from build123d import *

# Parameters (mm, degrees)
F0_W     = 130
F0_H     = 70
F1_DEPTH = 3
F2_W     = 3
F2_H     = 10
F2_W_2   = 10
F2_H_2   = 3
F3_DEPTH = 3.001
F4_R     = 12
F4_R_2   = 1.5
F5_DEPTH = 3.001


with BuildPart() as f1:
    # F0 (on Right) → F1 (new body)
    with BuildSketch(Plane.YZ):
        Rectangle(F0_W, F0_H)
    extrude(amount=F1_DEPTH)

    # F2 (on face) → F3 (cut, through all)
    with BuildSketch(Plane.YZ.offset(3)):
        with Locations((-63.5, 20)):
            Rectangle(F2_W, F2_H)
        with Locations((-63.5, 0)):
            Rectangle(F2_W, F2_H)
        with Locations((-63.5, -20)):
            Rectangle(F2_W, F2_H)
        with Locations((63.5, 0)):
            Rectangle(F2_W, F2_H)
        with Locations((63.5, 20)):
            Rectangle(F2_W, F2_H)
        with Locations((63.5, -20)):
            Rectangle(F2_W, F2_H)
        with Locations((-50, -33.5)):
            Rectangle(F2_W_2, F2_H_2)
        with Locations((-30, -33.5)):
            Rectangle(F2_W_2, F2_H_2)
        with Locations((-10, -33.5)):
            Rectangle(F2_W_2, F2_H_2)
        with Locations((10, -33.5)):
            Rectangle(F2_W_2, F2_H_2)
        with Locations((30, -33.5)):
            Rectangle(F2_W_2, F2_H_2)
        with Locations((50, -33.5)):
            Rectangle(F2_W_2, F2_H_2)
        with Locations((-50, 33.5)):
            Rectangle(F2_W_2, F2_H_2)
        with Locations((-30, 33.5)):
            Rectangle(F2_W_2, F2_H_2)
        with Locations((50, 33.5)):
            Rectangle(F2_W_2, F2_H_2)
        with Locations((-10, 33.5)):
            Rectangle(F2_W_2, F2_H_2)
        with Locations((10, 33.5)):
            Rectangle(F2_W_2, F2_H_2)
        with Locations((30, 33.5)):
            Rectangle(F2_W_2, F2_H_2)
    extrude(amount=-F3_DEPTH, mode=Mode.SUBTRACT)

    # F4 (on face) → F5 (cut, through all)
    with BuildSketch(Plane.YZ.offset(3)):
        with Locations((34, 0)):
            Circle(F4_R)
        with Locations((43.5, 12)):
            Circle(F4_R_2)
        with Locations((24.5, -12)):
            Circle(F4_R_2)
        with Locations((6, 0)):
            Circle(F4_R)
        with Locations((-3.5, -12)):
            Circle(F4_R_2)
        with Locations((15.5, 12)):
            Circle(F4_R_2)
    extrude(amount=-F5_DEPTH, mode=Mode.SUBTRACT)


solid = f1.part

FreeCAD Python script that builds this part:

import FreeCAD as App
import Part
import Sketcher

V = App.Vector

doc = App.newDocument("Part")
params = doc.addObject("Spreadsheet::Sheet", "Params")
for row, (alias, value) in enumerate([
    ("sketch1_width", "130 mm"),
    ("sketch1_height", "70 mm"),
    ("pad1_length", "3 mm"),
    ("sketch2_width", "3 mm"),
    ("sketch2_width2", "10 mm"),
    ("sketch3_diameter", "24 mm"),
    ("sketch3_diameter2", "3 mm"),
], start=1):
    params.set(f"A{row}", alias)
    params.set(f"B{row}", "=" + value)
    params.setAlias(f"B{row}", alias)

body = doc.addObject("PartDesign::Body", "Body")

# Sketch on YZ plane
sketch1 = body.newObject("Sketcher::SketchObject", "Sketch")
sketch1.AttachmentSupport = (doc.getObject("YZ_Plane"), [""])
sketch1.MapMode = "FlatFace"
sketch1.addGeometry([
    Part.LineSegment(V(-65, 35, 0), V(-65, -35, 0)),
    Part.LineSegment(V(-65, -35, 0), V(65, -35, 0)),
    Part.LineSegment(V(65, -35, 0), V(65, 35, 0)),
    Part.LineSegment(V(65, 35, 0), V(-65, 35, 0)),
], False)
sketch1.addConstraint([
    Sketcher.Constraint("Coincident", 0, 2, 1, 1),
    Sketcher.Constraint("Coincident", 1, 2, 2, 1),
    Sketcher.Constraint("Coincident", 2, 2, 3, 1),
    Sketcher.Constraint("Coincident", 3, 2, 0, 1),
    Sketcher.Constraint("Vertical", 0),
    Sketcher.Constraint("Horizontal", 1),
    Sketcher.Constraint("Vertical", 2),
    Sketcher.Constraint("Horizontal", 3),
    Sketcher.Constraint("Symmetric", 0, 2, 2, 2, -1, 1),
    Sketcher.Constraint("DistanceX", 1, 1, 1, 2, 130.0),
    Sketcher.Constraint("DistanceY", 0, 2, 0, 1, 70.0),
])
sketch1.setExpression("Constraints[9]", "Params.sketch1_width")
sketch1.setExpression("Constraints[10]", "Params.sketch1_height")
pad1 = body.newObject("PartDesign::Pad", "Pad")
pad1.Profile = sketch1
pad1.setExpression("Length", "Params.pad1_length")

# Sketch on YZ plane
sketch2 = body.newObject("Sketcher::SketchObject", "Sketch001")
sketch2.AttachmentSupport = (doc.getObject("YZ_Plane"), [""])
sketch2.MapMode = "FlatFace"
sketch2.AttachmentOffset = App.Placement(V(0, 0, 3), App.Rotation())
sketch2.addGeometry([
    Part.LineSegment(V(-65, 25, 0), V(-65, 15, 0)),  # 0
    Part.LineSegment(V(-65, 15, 0), V(-62, 15, 0)),  # 1
    Part.LineSegment(V(-62, 15, 0), V(-62, 25, 0)),  # 2
    Part.LineSegment(V(-62, 25, 0), V(-65, 25, 0)),  # 3
    Part.LineSegment(V(-65, 5, 0), V(-65, -5, 0)),  # 4
    Part.LineSegment(V(-65, -5, 0), V(-62, -5, 0)),  # 5
    Part.LineSegment(V(-62, -5, 0), V(-62, 5, 0)),  # 6
    Part.LineSegment(V(-62, 5, 0), V(-65, 5, 0)),  # 7
    Part.LineSegment(V(-65, -15, 0), V(-65, -25, 0)),  # 8
    Part.LineSegment(V(-65, -25, 0), V(-62, -25, 0)),  # 9
    Part.LineSegment(V(-62, -25, 0), V(-62, -15, 0)),  # 10
    Part.LineSegment(V(-62, -15, 0), V(-65, -15, 0)),  # 11
    Part.LineSegment(V(62, 5, 0), V(62, -5, 0)),  # 12
    Part.LineSegment(V(62, -5, 0), V(65, -5, 0)),  # 13
    Part.LineSegment(V(65, -5, 0), V(65, 5, 0)),  # 14
    Part.LineSegment(V(65, 5, 0), V(62, 5, 0)),  # 15
    Part.LineSegment(V(62, 25, 0), V(62, 15, 0)),  # 16
    Part.LineSegment(V(62, 15, 0), V(65, 15, 0)),  # 17
    Part.LineSegment(V(65, 15, 0), V(65, 25, 0)),  # 18
    Part.LineSegment(V(65, 25, 0), V(62, 25, 0)),  # 19
    Part.LineSegment(V(62, -15, 0), V(62, -25, 0)),  # 20
    Part.LineSegment(V(62, -25, 0), V(65, -25, 0)),  # 21
    Part.LineSegment(V(65, -25, 0), V(65, -15, 0)),  # 22
    Part.LineSegment(V(65, -15, 0), V(62, -15, 0)),  # 23
    Part.LineSegment(V(-55, -32, 0), V(-55, -35, 0)),  # 24
    Part.LineSegment(V(-55, -35, 0), V(-45, -35, 0)),  # 25
    Part.LineSegment(V(-45, -35, 0), V(-45, -32, 0)),  # 26
    Part.LineSegment(V(-45, -32, 0), V(-55, -32, 0)),  # 27
    Part.LineSegment(V(-35, -32, 0), V(-35, -35, 0)),  # 28
    Part.LineSegment(V(-35, -35, 0), V(-25, -35, 0)),  # 29
    Part.LineSegment(V(-25, -35, 0), V(-25, -32, 0)),  # 30
    Part.LineSegment(V(-25, -32, 0), V(-35, -32, 0)),  # 31
    Part.LineSegment(V(-15, -32, 0), V(-15, -35, 0)),  # 32
    Part.LineSegment(V(-15, -35, 0), V(-5, -35, 0)),  # 33
    Part.LineSegment(V(-5, -35, 0), V(-5, -32, 0)),  # 34
    Part.LineSegment(V(-5, -32, 0), V(-15, -32, 0)),  # 35
    Part.LineSegment(V(5, -32, 0), V(5, -35, 0)),  # 36
    Part.LineSegment(V(5, -35, 0), V(15, -35, 0)),  # 37
    Part.LineSegment(V(15, -35, 0), V(15, -32, 0)),  # 38
    Part.LineSegment(V(15, -32, 0), V(5, -32, 0)),  # 39
    Part.LineSegment(V(25, -32, 0), V(25, -35, 0)),  # 40
    Part.LineSegment(V(25, -35, 0), V(35, -35, 0)),  # 41
    Part.LineSegment(V(35, -35, 0), V(35, -32, 0)),  # 42
    Part.LineSegment(V(35, -32, 0), V(25, -32, 0)),  # 43
    Part.LineSegment(V(45, -32, 0), V(45, -35, 0)),  # 44
    Part.LineSegment(V(45, -35, 0), V(55, -35, 0)),  # 45
    Part.LineSegment(V(55, -35, 0), V(55, -32, 0)),  # 46
    Part.LineSegment(V(55, -32, 0), V(45, -32, 0)),  # 47
    Part.LineSegment(V(-55, 35, 0), V(-55, 32, 0)),  # 48
    Part.LineSegment(V(-55, 32, 0), V(-45, 32, 0)),  # 49
    Part.LineSegment(V(-45, 32, 0), V(-45, 35, 0)),  # 50
    Part.LineSegment(V(-45, 35, 0), V(-55, 35, 0)),  # 51
    Part.LineSegment(V(-35, 35, 0), V(-35, 32, 0)),  # 52
    Part.LineSegment(V(-35, 32, 0), V(-25, 32, 0)),  # 53
    Part.LineSegment(V(-25, 32, 0), V(-25, 35, 0)),  # 54
    Part.LineSegment(V(-25, 35, 0), V(-35, 35, 0)),  # 55
    Part.LineSegment(V(45, 35, 0), V(45, 32, 0)),  # 56
    Part.LineSegment(V(45, 32, 0), V(55, 32, 0)),  # 57
    Part.LineSegment(V(55, 32, 0), V(55, 35, 0)),  # 58
    Part.LineSegment(V(55, 35, 0), V(45, 35, 0)),  # 59
    Part.LineSegment(V(-15, 35, 0), V(-15, 32, 0)),  # 60
    Part.LineSegment(V(-15, 32, 0), V(-5, 32, 0)),  # 61
    Part.LineSegment(V(-5, 32, 0), V(-5, 35, 0)),  # 62
    Part.LineSegment(V(-5, 35, 0), V(-15, 35, 0)),  # 63
    Part.LineSegment(V(5, 35, 0), V(5, 32, 0)),  # 64
    Part.LineSegment(V(5, 32, 0), V(15, 32, 0)),  # 65
    Part.LineSegment(V(15, 32, 0), V(15, 35, 0)),  # 66
    Part.LineSegment(V(15, 35, 0), V(5, 35, 0)),  # 67
    Part.LineSegment(V(25, 35, 0), V(25, 32, 0)),  # 68
    Part.LineSegment(V(25, 32, 0), V(35, 32, 0)),  # 69
    Part.LineSegment(V(35, 32, 0), V(35, 35, 0)),  # 70
    Part.LineSegment(V(35, 35, 0), V(25, 35, 0)),  # 71
], False)
sketch2.addConstraint([
    Sketcher.Constraint("Coincident", 0, 2, 1, 1),
    Sketcher.Constraint("Coincident", 1, 2, 2, 1),
    Sketcher.Constraint("Coincident", 2, 2, 3, 1),
    Sketcher.Constraint("Coincident", 3, 2, 0, 1),
    Sketcher.Constraint("Coincident", 4, 2, 5, 1),
    Sketcher.Constraint("Coincident", 5, 2, 6, 1),
    Sketcher.Constraint("Coincident", 6, 2, 7, 1),
    Sketcher.Constraint("Coincident", 7, 2, 4, 1),
    Sketcher.Constraint("Coincident", 8, 2, 9, 1),
    Sketcher.Constraint("Coincident", 9, 2, 10, 1),
    Sketcher.Constraint("Coincident", 10, 2, 11, 1),
    Sketcher.Constraint("Coincident", 11, 2, 8, 1),
    Sketcher.Constraint("Coincident", 12, 2, 13, 1),
    Sketcher.Constraint("Coincident", 13, 2, 14, 1),
    Sketcher.Constraint("Coincident", 14, 2, 15, 1),
    Sketcher.Constraint("Coincident", 15, 2, 12, 1),
    Sketcher.Constraint("Coincident", 16, 2, 17, 1),
    Sketcher.Constraint("Coincident", 17, 2, 18, 1),
    Sketcher.Constraint("Coincident", 18, 2, 19, 1),
    Sketcher.Constraint("Coincident", 19, 2, 16, 1),
    Sketcher.Constraint("Coincident", 20, 2, 21, 1),
    Sketcher.Constraint("Coincident", 21, 2, 22, 1),
    Sketcher.Constraint("Coincident", 22, 2, 23, 1),
    Sketcher.Constraint("Coincident", 23, 2, 20, 1),
    Sketcher.Constraint("Coincident", 24, 2, 25, 1),
    Sketcher.Constraint("Coincident", 25, 2, 26, 1),
    Sketcher.Constraint("Coincident", 26, 2, 27, 1),
    Sketcher.Constraint("Coincident", 27, 2, 24, 1),
    Sketcher.Constraint("Coincident", 28, 2, 29, 1),
    Sketcher.Constraint("Coincident", 29, 2, 30, 1),
    Sketcher.Constraint("Coincident", 30, 2, 31, 1),
    Sketcher.Constraint("Coincident", 31, 2, 28, 1),
    Sketcher.Constraint("Coincident", 32, 2, 33, 1),
    Sketcher.Constraint("Coincident", 33, 2, 34, 1),
    Sketcher.Constraint("Coincident", 34, 2, 35, 1),
    Sketcher.Constraint("Coincident", 35, 2, 32, 1),
    Sketcher.Constraint("Coincident", 36, 2, 37, 1),
    Sketcher.Constraint("Coincident", 37, 2, 38, 1),
    Sketcher.Constraint("Coincident", 38, 2, 39, 1),
    Sketcher.Constraint("Coincident", 39, 2, 36, 1),
    Sketcher.Constraint("Coincident", 40, 2, 41, 1),
    Sketcher.Constraint("Coincident", 41, 2, 42, 1),
    Sketcher.Constraint("Coincident", 42, 2, 43, 1),
    Sketcher.Constraint("Coincident", 43, 2, 40, 1),
    Sketcher.Constraint("Coincident", 44, 2, 45, 1),
    Sketcher.Constraint("Coincident", 45, 2, 46, 1),
    Sketcher.Constraint("Coincident", 46, 2, 47, 1),
    Sketcher.Constraint("Coincident", 47, 2, 44, 1),
    Sketcher.Constraint("Coincident", 48, 2, 49, 1),
    Sketcher.Constraint("Coincident", 49, 2, 50, 1),
    Sketcher.Constraint("Coincident", 50, 2, 51, 1),
    Sketcher.Constraint("Coincident", 51, 2, 48, 1),
    Sketcher.Constraint("Coincident", 52, 2, 53, 1),
    Sketcher.Constraint("Coincident", 53, 2, 54, 1),
    Sketcher.Constraint("Coincident", 54, 2, 55, 1),
    Sketcher.Constraint("Coincident", 55, 2, 52, 1),
    Sketcher.Constraint("Coincident", 56, 2, 57, 1),
    Sketcher.Constraint("Coincident", 57, 2, 58, 1),
    Sketcher.Constraint("Coincident", 58, 2, 59, 1),
    Sketcher.Constraint("Coincident", 59, 2, 56, 1),
    Sketcher.Constraint("Coincident", 60, 2, 61, 1),
    Sketcher.Constraint("Coincident", 61, 2, 62, 1),
    Sketcher.Constraint("Coincident", 62, 2, 63, 1),
    Sketcher.Constraint("Coincident", 63, 2, 60, 1),
    Sketcher.Constraint("Coincident", 64, 2, 65, 1),
    Sketcher.Constraint("Coincident", 65, 2, 66, 1),
    Sketcher.Constraint("Coincident", 66, 2, 67, 1),
    Sketcher.Constraint("Coincident", 67, 2, 64, 1),
    Sketcher.Constraint("Coincident", 68, 2, 69, 1),
    Sketcher.Constraint("Coincident", 69, 2, 70, 1),
    Sketcher.Constraint("Coincident", 70, 2, 71, 1),
    Sketcher.Constraint("Coincident", 71, 2, 68, 1),
    Sketcher.Constraint("Vertical", 0),
    Sketcher.Constraint("Horizontal", 1),
    Sketcher.Constraint("Vertical", 2),
    Sketcher.Constraint("Horizontal", 3),
    Sketcher.Constraint("Vertical", 4),
    Sketcher.Constraint("Horizontal", 5),
    Sketcher.Constraint("Vertical", 6),
    Sketcher.Constraint("Horizontal", 7),
    Sketcher.Constraint("Vertical", 8),
    Sketcher.Constraint("Horizontal", 9),
    Sketcher.Constraint("Vertical", 10),
    Sketcher.Constraint("Horizontal", 11),
    Sketcher.Constraint("Vertical", 12),
    Sketcher.Constraint("Horizontal", 13),
    Sketcher.Constraint("Vertical", 14),
    Sketcher.Constraint("Horizontal", 15),
    Sketcher.Constraint("Vertical", 16),
    Sketcher.Constraint("Horizontal", 17),
    Sketcher.Constraint("Vertical", 18),
    Sketcher.Constraint("Horizontal", 19),
    Sketcher.Constraint("Vertical", 20),
    Sketcher.Constraint("Horizontal", 21),
    Sketcher.Constraint("Vertical", 22),
    Sketcher.Constraint("Horizontal", 23),
    Sketcher.Constraint("Vertical", 24),
    Sketcher.Constraint("Horizontal", 25),
    Sketcher.Constraint("Vertical", 26),
    Sketcher.Constraint("Horizontal", 27),
    Sketcher.Constraint("Vertical", 28),
    Sketcher.Constraint("Horizontal", 29),
    Sketcher.Constraint("Vertical", 30),
    Sketcher.Constraint("Horizontal", 31),
    Sketcher.Constraint("Vertical", 32),
    Sketcher.Constraint("Horizontal", 33),
    Sketcher.Constraint("Vertical", 34),
    Sketcher.Constraint("Horizontal", 35),
    Sketcher.Constraint("Vertical", 36),
    Sketcher.Constraint("Horizontal", 37),
    Sketcher.Constraint("Vertical", 38),
    Sketcher.Constraint("Horizontal", 39),
    Sketcher.Constraint("Vertical", 40),
    Sketcher.Constraint("Horizontal", 41),
    Sketcher.Constraint("Vertical", 42),
    Sketcher.Constraint("Horizontal", 43),
    Sketcher.Constraint("Vertical", 44),
    Sketcher.Constraint("Horizontal", 45),
    Sketcher.Constraint("Vertical", 46),
    Sketcher.Constraint("Horizontal", 47),
    Sketcher.Constraint("Vertical", 48),
    Sketcher.Constraint("Horizontal", 49),
    Sketcher.Constraint("Vertical", 50),
    Sketcher.Constraint("Horizontal", 51),
    Sketcher.Constraint("Vertical", 52),
    Sketcher.Constraint("Horizontal", 53),
    Sketcher.Constraint("Vertical", 54),
    Sketcher.Constraint("Horizontal", 55),
    Sketcher.Constraint("Vertical", 56),
    Sketcher.Constraint("Horizontal", 57),
    Sketcher.Constraint("Vertical", 58),
    Sketcher.Constraint("Horizontal", 59),
    Sketcher.Constraint("Vertical", 60),
    Sketcher.Constraint("Horizontal", 61),
    Sketcher.Constraint("Vertical", 62),
    Sketcher.Constraint("Horizontal", 63),
    Sketcher.Constraint("Vertical", 64),
    Sketcher.Constraint("Horizontal", 65),
    Sketcher.Constraint("Vertical", 66),
    Sketcher.Constraint("Horizontal", 67),
    Sketcher.Constraint("Vertical", 68),
    Sketcher.Constraint("Horizontal", 69),
    Sketcher.Constraint("Vertical", 70),
    Sketcher.Constraint("Horizontal", 71),
    Sketcher.Constraint("Symmetric", 6, 2, 12, 2, -1, 1),
    Sketcher.Constraint("Symmetric", 4, 2, 14, 2, -1, 1),
    Sketcher.Constraint("Symmetric", 10, 2, 16, 2, -1, 1),
    Sketcher.Constraint("Symmetric", 8, 2, 18, 2, -1, 1),
    Sketcher.Constraint("Symmetric", 2, 2, 20, 2, -1, 1),
    Sketcher.Constraint("Symmetric", 0, 2, 22, 2, -1, 1),
    Sketcher.Constraint("Symmetric", 46, 2, 48, 2, -1, 1),
    Sketcher.Constraint("Symmetric", 44, 2, 50, 2, -1, 1),
    Sketcher.Constraint("Symmetric", 42, 2, 52, 2, -1, 1),
    Sketcher.Constraint("Symmetric", 40, 2, 54, 2, -1, 1),
    Sketcher.Constraint("Symmetric", 26, 2, 56, 2, -1, 1),
    Sketcher.Constraint("Symmetric", 24, 2, 58, 2, -1, 1),
    Sketcher.Constraint("Symmetric", 38, 2, 60, 2, -1, 1),
    Sketcher.Constraint("Symmetric", 36, 2, 62, 2, -1, 1),
    Sketcher.Constraint("Symmetric", 34, 2, 64, 2, -1, 1),
    Sketcher.Constraint("Symmetric", 32, 2, 66, 2, -1, 1),
    Sketcher.Constraint("Symmetric", 30, 2, 68, 2, -1, 1),
    Sketcher.Constraint("Symmetric", 28, 2, 70, 2, -1, 1),
    Sketcher.Constraint("Symmetric", 1, 2, 16, 2, -2),
    Sketcher.Constraint("Symmetric", 3, 2, 18, 2, -2),
    Sketcher.Constraint("Symmetric", 33, 2, 36, 2, -2),
    Sketcher.Constraint("Symmetric", 35, 2, 38, 2, -2),
    Sketcher.Constraint("Symmetric", 29, 2, 40, 2, -2),
    Sketcher.Constraint("Symmetric", 31, 2, 42, 2, -2),
    Sketcher.Constraint("Symmetric", 25, 2, 44, 2, -2),
    Sketcher.Constraint("Symmetric", 27, 2, 46, 2, -2),
    Sketcher.Constraint("Horizontal", 5, 2, 12, 2),
    Sketcher.Constraint("Horizontal", 25, 2, 28, 2),
    Sketcher.Constraint("Horizontal", 27, 2, 30, 2),
    Sketcher.Constraint("Horizontal", 29, 2, 32, 2),
    Sketcher.Constraint("Horizontal", 31, 2, 34, 2),
    Sketcher.Constraint("Vertical", 3, 2, 4, 2),
    Sketcher.Constraint("Vertical", 2, 2, 5, 2),
    Sketcher.Constraint("Equal", 27, 29),
    Sketcher.Constraint("Equal", 31, 33),
    Sketcher.Constraint("Equal", 71, 0),
    Sketcher.Constraint("Equal", 2, 4),
    Sketcher.Constraint("Equal", 23, 24),
    Sketcher.Constraint("DistanceX", 1, 1, 1, 2, 3.0),
    Sketcher.Constraint("DistanceX", 25, 1, 25, 2, 10.0),
    Sketcher.Constraint("DistanceX", 0, 2, -1, 1, 65.0),
    Sketcher.Constraint("DistanceY", -1, 1, 0, 2, 15.0),
    Sketcher.Constraint("DistanceX", 24, 2, -1, 1, 55.0),
    Sketcher.Constraint("DistanceY", 24, 2, -1, 1, 35.0),
    Sketcher.Constraint("DistanceX", 28, 2, -1, 1, 35.0),
    Sketcher.Constraint("DistanceX", 32, 2, -1, 1, 15.0),
])
sketch2.setExpression("Constraints[182]", "Params.sketch2_width")
sketch2.setExpression("Constraints[183]", "Params.sketch2_width2")
pocket1 = body.newObject("PartDesign::Pocket", "Pocket")
pocket1.Profile = sketch2
pocket1.Type = "ThroughAll"

# Sketch on YZ plane
sketch3 = body.newObject("Sketcher::SketchObject", "Sketch002")
sketch3.AttachmentSupport = (doc.getObject("YZ_Plane"), [""])
sketch3.MapMode = "FlatFace"
sketch3.AttachmentOffset = App.Placement(V(0, 0, 3), App.Rotation())
sketch3.addGeometry([
    Part.Circle(V(34, 0, 0), V(0, 0, 1), 12),  # 0
    Part.Circle(V(43.5, 12, 0), V(0, 0, 1), 1.5),  # 1
    Part.Circle(V(24.5, -12, 0), V(0, 0, 1), 1.5),  # 2
    Part.Circle(V(6, 0, 0), V(0, 0, 1), 12),  # 3
    Part.Circle(V(-3.5, -12, 0), V(0, 0, 1), 1.5),  # 4
    Part.Circle(V(15.5, 12, 0), V(0, 0, 1), 1.5),  # 5
], False)
sketch3.addConstraint([
    Sketcher.Constraint("Equal", 1, 2),
    Sketcher.Constraint("Equal", 0, 3),
    Sketcher.Constraint("Equal", 2, 4),
    Sketcher.Constraint("Equal", 4, 5),
    Sketcher.Constraint("PointOnObject", 0, 3, -1),
    Sketcher.Constraint("PointOnObject", 3, 3, -1),
    Sketcher.Constraint("Horizontal", 2, 3, 4, 3),
    Sketcher.Constraint("Horizontal", 1, 3, 5, 3),
    Sketcher.Constraint("Diameter", 0, 24.0),
    Sketcher.Constraint("Diameter", 1, 3.0),
    Sketcher.Constraint("DistanceX", -1, 1, 0, 3, 34.0),
    Sketcher.Constraint("DistanceY", -1, 1, 1, 3, 12.0),
    Sketcher.Constraint("DistanceY", 2, 3, -1, 1, 12.0),
    Sketcher.Constraint("DistanceX", -1, 1, 3, 3, 6.0),
    Sketcher.Constraint("DistanceX", 2, 3, 1, 3, 19.0),
    Sketcher.Constraint("DistanceX", 4, 3, 2, 3, 28.0),
    Sketcher.Constraint("DistanceX", 5, 3, 2, 3, 9.0),
    Sketcher.Constraint("DistanceX", -1, 1, 1, 3, 43.5),
])
sketch3.setExpression("Constraints[8]", "Params.sketch3_diameter")
sketch3.setExpression("Constraints[9]", "Params.sketch3_diameter2")
pocket2 = body.newObject("PartDesign::Pocket", "Pocket001")
pocket2.Profile = sketch3
pocket2.Type = "ThroughAll"

doc.recompute()
